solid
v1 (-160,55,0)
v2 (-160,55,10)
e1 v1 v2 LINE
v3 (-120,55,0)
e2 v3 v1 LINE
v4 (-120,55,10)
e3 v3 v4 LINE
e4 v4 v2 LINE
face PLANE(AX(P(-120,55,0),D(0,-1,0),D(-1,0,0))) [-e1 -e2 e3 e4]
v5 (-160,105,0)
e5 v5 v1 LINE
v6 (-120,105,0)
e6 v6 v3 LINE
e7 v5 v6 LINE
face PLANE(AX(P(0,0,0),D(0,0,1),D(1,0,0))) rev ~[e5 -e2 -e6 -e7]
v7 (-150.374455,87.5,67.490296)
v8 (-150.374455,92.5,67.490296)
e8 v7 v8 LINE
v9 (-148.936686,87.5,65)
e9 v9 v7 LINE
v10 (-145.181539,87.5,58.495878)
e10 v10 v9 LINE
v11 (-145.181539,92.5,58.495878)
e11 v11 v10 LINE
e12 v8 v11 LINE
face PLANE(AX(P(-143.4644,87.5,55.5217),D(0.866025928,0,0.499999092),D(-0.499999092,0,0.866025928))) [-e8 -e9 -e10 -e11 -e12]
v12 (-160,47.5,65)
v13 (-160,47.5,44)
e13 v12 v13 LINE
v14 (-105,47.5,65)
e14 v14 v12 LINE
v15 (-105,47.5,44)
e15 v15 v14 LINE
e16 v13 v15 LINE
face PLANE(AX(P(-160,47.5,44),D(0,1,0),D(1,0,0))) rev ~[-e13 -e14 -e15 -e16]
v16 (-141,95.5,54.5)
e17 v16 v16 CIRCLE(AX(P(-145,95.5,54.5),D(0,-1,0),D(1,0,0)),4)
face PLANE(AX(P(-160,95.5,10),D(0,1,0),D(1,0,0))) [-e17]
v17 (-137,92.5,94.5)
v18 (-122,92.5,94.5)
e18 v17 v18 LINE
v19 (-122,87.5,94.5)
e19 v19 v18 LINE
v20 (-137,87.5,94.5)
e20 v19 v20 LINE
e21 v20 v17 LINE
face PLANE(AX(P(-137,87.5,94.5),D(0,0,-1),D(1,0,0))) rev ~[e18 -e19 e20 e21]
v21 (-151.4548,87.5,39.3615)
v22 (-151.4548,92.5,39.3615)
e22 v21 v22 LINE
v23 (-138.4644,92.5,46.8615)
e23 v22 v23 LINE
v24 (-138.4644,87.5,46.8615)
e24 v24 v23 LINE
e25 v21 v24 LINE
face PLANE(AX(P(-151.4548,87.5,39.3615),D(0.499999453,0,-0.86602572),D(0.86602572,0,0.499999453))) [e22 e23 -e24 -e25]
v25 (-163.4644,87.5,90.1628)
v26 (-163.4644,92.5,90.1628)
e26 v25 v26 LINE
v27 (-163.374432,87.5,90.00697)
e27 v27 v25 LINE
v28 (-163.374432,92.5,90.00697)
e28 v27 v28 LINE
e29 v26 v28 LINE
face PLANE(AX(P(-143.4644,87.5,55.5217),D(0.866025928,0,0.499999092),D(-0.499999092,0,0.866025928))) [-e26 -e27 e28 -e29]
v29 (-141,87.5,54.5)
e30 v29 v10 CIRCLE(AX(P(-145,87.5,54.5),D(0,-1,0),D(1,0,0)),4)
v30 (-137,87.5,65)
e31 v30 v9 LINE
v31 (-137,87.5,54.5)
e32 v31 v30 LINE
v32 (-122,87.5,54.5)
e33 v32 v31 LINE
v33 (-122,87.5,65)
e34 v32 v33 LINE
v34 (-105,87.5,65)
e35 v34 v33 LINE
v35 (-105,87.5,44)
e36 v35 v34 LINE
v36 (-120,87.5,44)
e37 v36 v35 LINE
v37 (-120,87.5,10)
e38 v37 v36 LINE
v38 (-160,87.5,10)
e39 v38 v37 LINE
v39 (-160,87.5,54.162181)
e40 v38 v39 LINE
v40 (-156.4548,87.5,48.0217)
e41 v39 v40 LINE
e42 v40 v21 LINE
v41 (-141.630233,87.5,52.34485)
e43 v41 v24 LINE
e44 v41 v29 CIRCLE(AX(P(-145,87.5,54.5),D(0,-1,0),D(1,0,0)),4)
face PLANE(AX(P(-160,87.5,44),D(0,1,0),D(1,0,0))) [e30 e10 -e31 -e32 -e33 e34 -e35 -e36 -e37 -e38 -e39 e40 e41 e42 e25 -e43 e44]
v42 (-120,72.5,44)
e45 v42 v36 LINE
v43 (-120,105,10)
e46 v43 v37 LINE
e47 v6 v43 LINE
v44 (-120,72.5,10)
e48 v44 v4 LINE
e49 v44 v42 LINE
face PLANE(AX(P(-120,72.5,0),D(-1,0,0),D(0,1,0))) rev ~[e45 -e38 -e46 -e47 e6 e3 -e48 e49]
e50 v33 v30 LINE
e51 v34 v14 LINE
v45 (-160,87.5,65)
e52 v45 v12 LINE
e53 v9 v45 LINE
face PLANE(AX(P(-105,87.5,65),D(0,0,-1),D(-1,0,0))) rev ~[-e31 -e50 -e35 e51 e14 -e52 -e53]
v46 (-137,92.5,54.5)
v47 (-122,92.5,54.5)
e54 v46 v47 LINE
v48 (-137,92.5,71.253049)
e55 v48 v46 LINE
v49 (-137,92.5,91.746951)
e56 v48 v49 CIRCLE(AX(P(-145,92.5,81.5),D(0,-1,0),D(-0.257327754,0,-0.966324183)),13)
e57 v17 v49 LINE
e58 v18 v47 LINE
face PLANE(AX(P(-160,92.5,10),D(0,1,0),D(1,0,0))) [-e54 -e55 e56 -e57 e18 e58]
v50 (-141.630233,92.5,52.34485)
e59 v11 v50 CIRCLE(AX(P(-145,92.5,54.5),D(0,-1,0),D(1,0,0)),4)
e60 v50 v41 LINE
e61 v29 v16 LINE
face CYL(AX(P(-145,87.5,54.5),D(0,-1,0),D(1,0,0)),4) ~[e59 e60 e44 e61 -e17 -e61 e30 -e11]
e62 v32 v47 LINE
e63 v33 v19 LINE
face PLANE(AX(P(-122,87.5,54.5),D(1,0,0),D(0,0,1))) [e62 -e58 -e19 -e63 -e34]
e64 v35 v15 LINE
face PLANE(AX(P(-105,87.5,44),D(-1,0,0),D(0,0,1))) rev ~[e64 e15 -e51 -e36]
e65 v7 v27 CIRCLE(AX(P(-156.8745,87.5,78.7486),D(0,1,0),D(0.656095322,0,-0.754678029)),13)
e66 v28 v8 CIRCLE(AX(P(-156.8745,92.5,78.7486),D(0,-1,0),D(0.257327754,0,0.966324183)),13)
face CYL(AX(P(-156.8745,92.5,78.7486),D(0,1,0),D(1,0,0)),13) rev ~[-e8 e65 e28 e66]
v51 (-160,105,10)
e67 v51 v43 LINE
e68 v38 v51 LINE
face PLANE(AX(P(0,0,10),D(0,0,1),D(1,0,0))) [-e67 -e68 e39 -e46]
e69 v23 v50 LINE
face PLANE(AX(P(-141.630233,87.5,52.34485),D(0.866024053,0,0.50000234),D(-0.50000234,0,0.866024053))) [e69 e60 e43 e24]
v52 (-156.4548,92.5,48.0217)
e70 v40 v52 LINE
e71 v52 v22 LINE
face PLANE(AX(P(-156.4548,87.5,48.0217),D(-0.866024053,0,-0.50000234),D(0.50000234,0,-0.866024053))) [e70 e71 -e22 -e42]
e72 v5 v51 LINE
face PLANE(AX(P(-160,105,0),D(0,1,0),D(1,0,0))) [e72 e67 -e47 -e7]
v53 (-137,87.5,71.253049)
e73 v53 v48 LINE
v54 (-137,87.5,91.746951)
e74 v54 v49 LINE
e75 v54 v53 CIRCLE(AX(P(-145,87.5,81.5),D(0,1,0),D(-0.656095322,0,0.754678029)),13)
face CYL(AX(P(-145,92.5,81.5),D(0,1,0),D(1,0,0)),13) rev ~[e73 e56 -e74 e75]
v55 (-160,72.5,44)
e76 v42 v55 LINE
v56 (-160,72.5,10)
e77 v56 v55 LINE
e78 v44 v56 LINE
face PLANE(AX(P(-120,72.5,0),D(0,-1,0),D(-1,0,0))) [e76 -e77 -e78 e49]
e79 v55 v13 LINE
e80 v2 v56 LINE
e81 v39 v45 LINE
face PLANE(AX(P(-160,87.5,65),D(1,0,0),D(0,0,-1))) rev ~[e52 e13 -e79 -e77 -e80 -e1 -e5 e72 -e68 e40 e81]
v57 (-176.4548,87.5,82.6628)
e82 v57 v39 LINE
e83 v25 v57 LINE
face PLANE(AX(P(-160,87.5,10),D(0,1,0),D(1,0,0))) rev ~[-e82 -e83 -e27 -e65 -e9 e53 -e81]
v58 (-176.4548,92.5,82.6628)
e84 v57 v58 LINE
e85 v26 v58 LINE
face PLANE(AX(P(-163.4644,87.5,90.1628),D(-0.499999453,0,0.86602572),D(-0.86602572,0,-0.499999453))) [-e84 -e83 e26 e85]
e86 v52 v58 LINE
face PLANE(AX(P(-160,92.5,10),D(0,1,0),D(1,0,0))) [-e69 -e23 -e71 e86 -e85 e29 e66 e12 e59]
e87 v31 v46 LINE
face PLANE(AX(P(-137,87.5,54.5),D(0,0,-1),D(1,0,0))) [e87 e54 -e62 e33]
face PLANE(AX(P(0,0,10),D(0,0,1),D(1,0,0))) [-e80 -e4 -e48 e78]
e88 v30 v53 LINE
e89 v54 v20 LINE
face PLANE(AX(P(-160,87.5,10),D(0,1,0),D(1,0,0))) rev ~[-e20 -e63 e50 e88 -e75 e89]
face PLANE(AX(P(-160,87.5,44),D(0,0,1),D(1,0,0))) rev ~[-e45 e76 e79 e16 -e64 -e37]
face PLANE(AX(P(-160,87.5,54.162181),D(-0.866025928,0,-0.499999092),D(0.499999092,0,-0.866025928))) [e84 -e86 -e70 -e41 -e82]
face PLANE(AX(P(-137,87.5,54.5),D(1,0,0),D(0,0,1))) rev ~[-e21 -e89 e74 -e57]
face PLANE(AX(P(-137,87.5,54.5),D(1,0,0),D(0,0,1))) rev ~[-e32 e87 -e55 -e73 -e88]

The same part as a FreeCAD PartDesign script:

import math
import FreeCAD as App
import Part
import Sketcher

V = App.Vector
Q = App.Units.Quantity

doc = App.newDocument("Part")
body = doc.addObject("PartDesign::Body", "Body")

# Sketch on XY plane
sketch1 = body.newObject("Sketcher::SketchObject", "Sketch")
sketch1.AttachmentSupport = (doc.getObject("XY_Plane"), [""])
sketch1.MapMode = "FlatFace"
sketch1.addGeometry([
    Part.LineSegment(V(-160, 88, 0), V(-160, 72, 0)),
    Part.LineSegment(V(-160, 72, 0), V(-120, 72, 0)),
    Part.LineSegment(V(-120, 72, 0), V(-120, 88, 0)),
    Part.LineSegment(V(-120, 88, 0), V(-160, 88, 0)),
], False)
sketch1.addConstraint([
    Sketcher.Constraint("Coincident", 0, 2, 1, 1),
    Sketcher.Constraint("Coincident", 1, 2, 2, 1),
    Sketcher.Constraint("Coincident", 2, 2, 3, 1),
    Sketcher.Constraint("Coincident", 3, 2, 0, 1),
    Sketcher.Constraint("Vertical", 0),
    Sketcher.Constraint("Horizontal", 1),
    Sketcher.Constraint("Vertical", 2),
    Sketcher.Constraint("Horizontal", 3),
    Sketcher.Constraint("DistanceX", 1, 1, 1, 2, Q("40 mm")),
    Sketcher.Constraint("DistanceY", 0, 2, 0, 1, Q("15 mm")),
    Sketcher.Constraint("DistanceX", 0, 2, -1, 1, Q("160 mm")),
    Sketcher.Constraint("DistanceY", -1, 1, 0, 2, Q("72.5 mm")),
])
pad1 = body.newObject("PartDesign::Pad", "Pad")
pad1.Profile = sketch1
pad1.Length = 44

# Sketch on XY plane
sketch2 = body.newObject("Sketcher::SketchObject", "Sketch001")
sketch2.AttachmentSupport = (doc.getObject("XY_Plane"), [""])
sketch2.MapMode = "FlatFace"
sketch2.addGeometry([
    Part.LineSegment(V(-160, 88, 0), V(-120, 88, 0)),  # 0
    Part.LineSegment(V(-120, 88, 0), V(-120, 105, 0)),  # 1
    Part.LineSegment(V(-120, 105, 0), V(-160, 105, 0)),  # 2
    Part.LineSegment(V(-160, 105, 0), V(-160, 88, 0)),  # 3
    Part.LineSegment(V(-120, 55, 0), V(-120, 72, 0)),  # 4
    Part.LineSegment(V(-120, 72, 0), V(-160, 72, 0)),  # 5
    Part.LineSegment(V(-160, 72, 0), V(-160, 55, 0)),  # 6
    Part.LineSegment(V(-160, 55, 0), V(-120, 55, 0)),  # 7
], False)
sketch2.addConstraint([
    Sketcher.Constraint("Coincident", 0, 2, 1, 1),
    Sketcher.Constraint("Coincident", 1, 2, 2, 1),
    Sketcher.Constraint("Coincident", 2, 2, 3, 1),
    Sketcher.Constraint("Coincident", 3, 2, 0, 1),
    Sketcher.Constraint("Coincident", 4, 2, 5, 1),
    Sketcher.Constraint("Coincident", 5, 2, 6, 1),
    Sketcher.Constraint("Coincident", 6, 2, 7, 1),
    Sketcher.Constraint("Coincident", 7, 2, 4, 1),
    Sketcher.Constraint("Horizontal", 0),
    Sketcher.Constraint("Vertical", 1),
    Sketcher.Constraint("Horizontal", 2),
    Sketcher.Constraint("Vertical", 3),
    Sketcher.Constraint("Vertical", 4),
    Sketcher.Constraint("Horizontal", 5),
    Sketcher.Constraint("Vertical", 6),
    Sketcher.Constraint("Horizontal", 7),
    Sketcher.Constraint("Vertical", 1, 2, 4, 2),
    Sketcher.Constraint("Vertical", 3, 2, 5, 2),
    Sketcher.Constraint("Equal", 3, 4),
    Sketcher.Constraint("DistanceX", 0, 1, 0, 2, Q("40 mm")),
    Sketcher.Constraint("DistanceY", 6, 2, 2, 2, Q("50 mm")),
    Sketcher.Constraint("DistanceY", 1, 1, 1, 2, Q("17.5 mm")),
    Sketcher.Constraint("DistanceX", 0, 2, -1, 1, Q("120 mm")),
    Sketcher.Constraint("DistanceY", -1, 1, 1, 2, Q("105 mm")),
])
pad2 = body.newObject("PartDesign::Pad", "Pad001")
pad2.Profile = sketch2
pad2.Length = 10

# Sketch on XZ plane
sketch3 = body.newObject("Sketcher::SketchObject", "Sketch002")
sketch3.AttachmentSupport = (doc.getObject("XZ_Plane"), [""])
sketch3.MapMode = "FlatFace"
sketch3.AttachmentOffset = App.Placement(V(0, 0, -87.5), App.Rotation())
sketch3.addGeometry([
    Part.LineSegment(V(-105, 44, 0), V(-160, 44, 0)),
    Part.LineSegment(V(-160, 44, 0), V(-160, 65, 0)),
    Part.LineSegment(V(-160, 65, 0), V(-105, 65, 0)),
    Part.LineSegment(V(-105, 65, 0), V(-105, 44, 0)),
], False)
sketch3.addConstraint([
    Sketcher.Constraint("Coincident", 0, 2, 1, 1),
    Sketcher.Constraint("Coincident", 1, 2, 2, 1),
    Sketcher.Constraint("Coincident", 2, 2, 3, 1),
    Sketcher.Constraint("Coincident", 3, 2, 0, 1),
    Sketcher.Constraint("Horizontal", 0),
    Sketcher.Constraint("Vertical", 1),
    Sketcher.Constraint("Horizontal", 2),
    Sketcher.Constraint("Vertical", 3),
    Sketcher.Constraint("DistanceX", 0, 2, 0, 1, Q("55 mm")),
    Sketcher.Constraint("DistanceY", 1, 1, 1, 2, Q("21 mm")),
    Sketcher.Constraint("DistanceX", 0, 2, -1, 1, Q("160 mm")),
    Sketcher.Constraint("DistanceY", -1, 1, 0, 2, Q("44 mm")),
])
pad3 = body.newObject("PartDesign::Pad", "Pad002")
pad3.Profile = sketch3
pad3.Length = 40

# Sketch on XZ plane
sketch4 = body.newObject("Sketcher::SketchObject", "Sketch003")
sketch4.AttachmentSupport = (doc.getObject("XZ_Plane"), [""])
sketch4.MapMode = "FlatFace"
sketch4.AttachmentOffset = App.Placement(V(0, 0, -87.5), App.Rotation())
sketch4.addGeometry(Part.Circle(V(-145, 54.5, 0), V(0, 0, 1), 4), False)
sketch4.addConstraint([
    Sketcher.Constraint("Diameter", 0, Q("8 mm")),
    Sketcher.Constraint("DistanceX", 0, 3, -1, 1, Q("145 mm")),
    Sketcher.Constraint("DistanceY", -1, 1, 0, 3, Q("54.5 mm")),
])
pad4 = body.newObject("PartDesign::Pad", "Pad003")
pad4.Profile = sketch4
pad4.Length = 8
pad4.Reversed = True

# Sketch on XZ plane
sketch5 = body.newObject("Sketcher::SketchObject", "Sketch004")
sketch5.AttachmentSupport = (doc.getObject("XZ_Plane"), [""])
sketch5.MapMode = "FlatFace"
sketch5.AttachmentOffset = App.Placement(V(0, 0, -87.5), App.Rotation())
sketch5.addGeometry([
    Part.LineSegment(V(-138, 47, 0), V(-151, 39, 0)),  # 0
    Part.LineSegment(V(-151, 39, 0), V(-156, 48, 0)),  # 1
    Part.LineSegment(V(-156, 48, 0), V(-176, 83, 0)),  # 2
    Part.LineSegment(V(-176, 83, 0), V(-163, 90, 0)),  # 3
    Part.LineSegment(V(-163, 90, 0), V(-143, 56, 0)),  # 4
    Part.LineSegment(V(-143, 56, 0), V(-138, 47, 0)),  # 5
    Part.LineSegment(V(-137, 54, 0), V(-137, 94, 0)),  # 6
    Part.LineSegment(V(-137, 94, 0), V(-122, 94, 0)),  # 7
    Part.LineSegment(V(-122, 94, 0), V(-122, 54, 0)),  # 8
    Part.LineSegment(V(-122, 54, 0), V(-137, 54, 0)),  # 9
], False)
sketch5.addConstraint([
    Sketcher.Constraint("Coincident", 0, 2, 1, 1),
    Sketcher.Constraint("Coincident", 1, 2, 2, 1),
    Sketcher.Constraint("Coincident", 2, 2, 3, 1),
    Sketcher.Constraint("Coincident", 3, 2, 4, 1),
    Sketcher.Constraint("Coincident", 4, 2, 5, 1),
    Sketcher.Constraint("Coincident", 5, 2, 0, 1),
    Sketcher.Constraint("Coincident", 6, 2, 7, 1),
    Sketcher.Constraint("Coincident", 7, 2, 8, 1),
    Sketcher.Constraint("Coincident", 8, 2, 9, 1),
    Sketcher.Constraint("Coincident", 9, 2, 6, 1),
    Sketcher.Constraint("Vertical", 6),
    Sketcher.Constraint("Horizontal", 7),
    Sketcher.Constraint("Vertical", 8),
    Sketcher.Constraint("Horizontal", 9),
    Sketcher.Constraint("Perpendicular", 0, 1),
    Sketcher.Constraint("Parallel", 1, 2),
    Sketcher.Constraint("Perpendicular", 2, 3),
    Sketcher.Constraint("Perpendicular", 3, 4),
    Sketcher.Constraint("Parallel", 4, 5),
    Sketcher.Constraint("Equal", 2, 4),
    Sketcher.Constraint("DistanceX", 7, 1, 7, 2, Q("15 mm")),
    Sketcher.Constraint("DistanceY", 6, 1, 6, 2, Q("40 mm")),
    Sketcher.Constraint("Distance", 0, Q("15 mm")),
    Sketcher.Constraint("Distance", 1, Q("10 mm")),
    Sketcher.Constraint("Distance", 2, Q("40 mm")),
    Sketcher.Constraint("DistanceX", 1, 2, 0, 2, Q("5 mm")),
    Sketcher.Constraint("DistanceX", 6, 2, -1, 1, Q("137 mm")),
    Sketcher.Constraint("DistanceY", -1, 1, 6, 2, Q("94.5 mm")),
    Sketcher.Constraint("DistanceX", 0, 2, -1, 1, Q("151.4548 mm")),
    Sketcher.Constraint("DistanceY", -1, 1, 0, 2, Q("39.3615 mm")),
])
pad5 = body.newObject("PartDesign::Pad", "Pad004")
pad5.Profile = sketch5
pad5.Length = 5
pad5.Reversed = True

# Sketch on XZ plane
sketch6 = body.newObject("Sketcher::SketchObject", "Sketch005")
sketch6.AttachmentSupport = (doc.getObject("XZ_Plane"), [""])
sketch6.MapMode = "FlatFace"
sketch6.AttachmentOffset = App.Placement(V(0, 0, -92.5), App.Rotation())
sketch6.addGeometry([
    Part.ArcOfCircle(Part.Circle(V(-145, 82, 0), V(0, 0, 1), 13), math.radians(-105), math.radians(131)),
    Part.ArcOfCircle(Part.Circle(V(-157, 79, 0), V(0, 0, 1), 13), math.radians(75), math.radians(311)),
], False)
sketch6.addConstraint([
    Sketcher.Constraint("Coincident", 0, 1, 1, 2),
    Sketcher.Constraint("Coincident", 1, 1, 0, 2),
    Sketcher.Constraint("Equal", 0, 1),
    Sketcher.Constraint("Radius", 0, Q("13 mm")),
    Sketcher.Constraint("DistanceX", 0, 3, -1, 1, Q("145 mm")),
    Sketcher.Constraint("DistanceY", -1, 1, 0, 3, Q("81.5 mm")),
    Sketcher.Constraint("DistanceX", 1, 1, 0, 1, Q("5.184 mm")),
    Sketcher.Constraint("DistanceY", 0, 1, 1, 1, Q("22.373 mm")),
])
pocket1 = body.newObject("PartDesign::Pocket", "Pocket")
pocket1.Profile = sketch6
pocket1.Length = 5
pocket1.Reversed = True

doc.recompute()
